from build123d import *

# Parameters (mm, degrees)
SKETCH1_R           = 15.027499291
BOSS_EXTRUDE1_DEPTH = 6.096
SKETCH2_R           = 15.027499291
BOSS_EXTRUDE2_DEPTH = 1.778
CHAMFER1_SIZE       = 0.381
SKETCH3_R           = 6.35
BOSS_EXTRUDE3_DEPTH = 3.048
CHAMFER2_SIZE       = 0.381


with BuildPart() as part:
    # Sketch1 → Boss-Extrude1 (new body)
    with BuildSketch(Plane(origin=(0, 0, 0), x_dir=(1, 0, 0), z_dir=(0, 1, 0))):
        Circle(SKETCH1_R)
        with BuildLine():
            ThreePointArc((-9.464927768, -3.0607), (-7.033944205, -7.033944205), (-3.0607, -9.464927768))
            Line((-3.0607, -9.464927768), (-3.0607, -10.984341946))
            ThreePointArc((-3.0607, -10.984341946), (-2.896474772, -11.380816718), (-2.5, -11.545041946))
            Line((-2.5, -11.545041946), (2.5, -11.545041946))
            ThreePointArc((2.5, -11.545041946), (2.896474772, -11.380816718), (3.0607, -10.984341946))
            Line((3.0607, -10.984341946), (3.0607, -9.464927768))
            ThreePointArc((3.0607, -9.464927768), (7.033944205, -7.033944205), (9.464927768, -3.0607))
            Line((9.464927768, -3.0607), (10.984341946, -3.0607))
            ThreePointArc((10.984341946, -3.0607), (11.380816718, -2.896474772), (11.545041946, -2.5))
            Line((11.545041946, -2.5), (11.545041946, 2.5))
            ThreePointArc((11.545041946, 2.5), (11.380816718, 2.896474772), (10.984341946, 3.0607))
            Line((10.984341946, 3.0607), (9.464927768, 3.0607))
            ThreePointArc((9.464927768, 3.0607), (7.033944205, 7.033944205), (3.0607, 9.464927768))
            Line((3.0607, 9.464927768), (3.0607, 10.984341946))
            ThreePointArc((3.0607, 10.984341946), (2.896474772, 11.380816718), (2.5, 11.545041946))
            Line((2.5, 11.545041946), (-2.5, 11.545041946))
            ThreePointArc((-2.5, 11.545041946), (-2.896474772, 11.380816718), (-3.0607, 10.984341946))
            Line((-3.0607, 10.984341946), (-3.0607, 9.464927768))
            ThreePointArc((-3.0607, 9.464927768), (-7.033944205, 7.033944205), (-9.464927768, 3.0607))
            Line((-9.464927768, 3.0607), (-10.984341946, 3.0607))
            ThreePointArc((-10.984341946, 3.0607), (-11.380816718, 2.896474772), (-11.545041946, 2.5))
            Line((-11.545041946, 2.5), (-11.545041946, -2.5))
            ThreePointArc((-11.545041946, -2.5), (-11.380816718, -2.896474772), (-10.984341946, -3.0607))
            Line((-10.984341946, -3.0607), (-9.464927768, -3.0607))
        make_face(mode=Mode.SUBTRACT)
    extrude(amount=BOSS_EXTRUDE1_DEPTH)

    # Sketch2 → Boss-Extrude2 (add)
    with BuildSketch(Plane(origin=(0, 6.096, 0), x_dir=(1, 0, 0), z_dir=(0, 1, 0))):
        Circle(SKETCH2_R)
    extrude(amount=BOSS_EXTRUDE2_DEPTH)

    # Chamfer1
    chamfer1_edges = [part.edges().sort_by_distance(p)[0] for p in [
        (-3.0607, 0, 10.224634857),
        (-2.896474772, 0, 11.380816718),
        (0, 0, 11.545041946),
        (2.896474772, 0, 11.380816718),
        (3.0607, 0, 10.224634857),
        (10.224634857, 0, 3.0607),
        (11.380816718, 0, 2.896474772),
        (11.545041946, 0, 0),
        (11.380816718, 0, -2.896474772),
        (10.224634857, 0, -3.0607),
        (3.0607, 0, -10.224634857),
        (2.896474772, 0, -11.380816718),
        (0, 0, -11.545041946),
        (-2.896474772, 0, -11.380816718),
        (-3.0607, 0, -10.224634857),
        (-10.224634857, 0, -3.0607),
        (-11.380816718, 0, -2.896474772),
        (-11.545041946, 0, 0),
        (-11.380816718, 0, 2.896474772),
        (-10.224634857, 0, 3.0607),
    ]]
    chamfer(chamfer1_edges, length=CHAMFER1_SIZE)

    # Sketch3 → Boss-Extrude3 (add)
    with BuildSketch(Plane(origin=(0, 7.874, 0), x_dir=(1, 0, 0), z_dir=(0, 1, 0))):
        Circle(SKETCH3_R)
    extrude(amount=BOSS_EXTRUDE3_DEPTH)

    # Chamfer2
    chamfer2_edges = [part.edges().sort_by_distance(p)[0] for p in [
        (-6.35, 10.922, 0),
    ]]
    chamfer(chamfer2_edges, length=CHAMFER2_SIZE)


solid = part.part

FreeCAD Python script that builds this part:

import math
import FreeCAD as App
import Part
import Sketcher
Q = App.Units.Quantity


def edges_at(feature, points):
    """Names of the edges that pass closest to the given points."""
    edges = feature.Shape.Edges
    near = lambda p: min(range(len(edges)), key=lambda i: edges[i].distToShape(Part.Vertex(*p))[0])
    return sorted({f"Edge{near(p) + 1}" for p in points})

doc = App.newDocument("Part")
params = doc.addObject("Spreadsheet::Sheet", "Params")
for row, (alias, value) in enumerate([
    ("pad1_length", "0.24 in"),
    ("pad2_length", "0.07 in"),
    ("chamfer_size", "0.015 in"),
    ("sketch3_diameter", "0.5 in"),
    ("pad3_length", "0.12 in"),
    ("chamfer2_size", "0.015 in"),
], start=1):
    params.set(f"A{row}", alias)
    params.set(f"B{row}", "=" + value)
    params.setAlias(f"B{row}", alias)

body = doc.addObject("PartDesign::Body", "Body")

sketch1 = body.newObject("Sketcher::SketchObject", "Sketch")
sketch1.AttachmentSupport = (doc.getObject("XZ_Plane"), [""])
sketch1.MapMode = "FlatFace"
sketch1.addGeometry([
    Part.Circle(App.Vector(0, 0, 0), App.Vector(0, 0, 1), 15),
    Part.ArcOfCircle(Part.Circle(App.Vector(0, 0, 0), App.Vector(0, 0, 1), 9.9), math.radians(108), math.radians(162)),
    Part.LineSegment(App.Vector(-9.5, 3.1, 0), App.Vector(-11, 3.1, 0)),
    Part.ArcOfCircle(Part.Circle(App.Vector(-11, 2.5, 0), App.Vector(0, 0, 1), 0.6), math.radians(90), math.radians(180)),
    Part.LineSegment(App.Vector(-11.5, 2.5, 0), App.Vector(-11.5, -2.5, 0)),
    Part.ArcOfCircle(Part.Circle(App.Vector(-11, -2.5, 0), App.Vector(0, 0, 1), 0.6), math.radians(-180), math.radians(-90)),
    Part.LineSegment(App.Vector(-11, -3.1, 0), App.Vector(-9.5, -3.1, 0)),
    Part.ArcOfCircle(Part.Circle(App.Vector(0, 0, 0), App.Vector(0, 0, 1), 9.9), math.radians(-162), math.radians(-108)),
    Part.LineSegment(App.Vector(-3.1, -9.5, 0), App.Vector(-3.1, -11, 0)),
    Part.ArcOfCircle(Part.Circle(App.Vector(-2.5, -11, 0), App.Vector(0, 0, 1), 0.6), math.radians(-180), math.radians(-90)),
    Part.LineSegment(App.Vector(-2.5, -11.5, 0), App.Vector(2.5, -11.5, 0)),
    Part.ArcOfCircle(Part.Circle(App.Vector(2.5, -11, 0), App.Vector(0, 0, 1), 0.6), math.radians(-90), math.radians(0)),
    Part.LineSegment(App.Vector(3.1, -11, 0), App.Vector(3.1, -9.5, 0)),
    Part.ArcOfCircle(Part.Circle(App.Vector(0, 0, 0), App.Vector(0, 0, 1), 9.9), math.radians(-72), math.radians(-18)),
    Part.LineSegment(App.Vector(9.5, -3.1, 0), App.Vector(11, -3.1, 0)),
    Part.ArcOfCircle(Part.Circle(App.Vector(11, -2.5, 0), App.Vector(0, 0, 1), 0.6), math.radians(-90), math.radians(0)),
    Part.LineSegment(App.Vector(11.5, -2.5, 0), App.Vector(11.5, 2.5, 0)),
    Part.ArcOfCircle(Part.Circle(App.Vector(11, 2.5, 0), App.Vector(0, 0, 1), 0.6), math.radians(0), math.radians(90)),
    Part.LineSegment(App.Vector(11, 3.1, 0), App.Vector(9.5, 3.1, 0)),
    Part.ArcOfCircle(Part.Circle(App.Vector(0, 0, 0), App.Vector(0, 0, 1), 9.9), math.radians(18), math.radians(72)),
    Part.LineSegment(App.Vector(3.1, 9.5, 0), App.Vector(3.1, 11, 0)),
    Part.ArcOfCircle(Part.Circle(App.Vector(2.5, 11, 0), App.Vector(0, 0, 1), 0.6), math.radians(0), math.radians(90)),
    Part.LineSegment(App.Vector(2.5, 11.5, 0), App.Vector(-2.5, 11.5, 0)),
    Part.ArcOfCircle(Part.Circle(App.Vector(-2.5, 11, 0), App.Vector(0, 0, 1), 0.6), math.radians(90), math.radians(180)),
    Part.LineSegment(App.Vector(-3.1, 11, 0), App.Vector(-3.1, 9.5, 0)),
], False)
sketch1.addConstraint([
    Sketcher.Constraint("Coincident", 1, 2, 2, 1),
    Sketcher.Constraint("Tangent", 2, 2, 3, 1),
    Sketcher.Constraint("Tangent", 3, 2, 4, 1),
    Sketcher.Constraint("Tangent", 4, 2, 5, 1),
    Sketcher.Constraint("Tangent", 5, 2, 6, 1),
    Sketcher.Constraint("Coincident", 6, 2, 7, 1),
    Sketcher.Constraint("Coincident", 7, 2, 8, 1),
    Sketcher.Constraint("Tangent", 8, 2, 9, 1),
    Sketcher.Constraint("Tangent", 9, 2, 10, 1),
    Sketcher.Constraint("Tangent", 10, 2, 11, 1),
    Sketcher.Constraint("Tangent", 11, 2, 12, 1),
    Sketcher.Constraint("Coincident", 12, 2, 13, 1),
    Sketcher.Constraint("Coincident", 13, 2, 14, 1),
    Sketcher.Constraint("Tangent", 14, 2, 15, 1),
    Sketcher.Constraint("Tangent", 15, 2, 16, 1),
    Sketcher.Constraint("Tangent", 16, 2, 17, 1),
    Sketcher.Constraint("Tangent", 17, 2, 18, 1),
    Sketcher.Constraint("Coincident", 18, 2, 19, 1),
    Sketcher.Constraint("Coincident", 19, 2, 20, 1),
    Sketcher.Constraint("Tangent", 20, 2, 21, 1),
    Sketcher.Constraint("Tangent", 21, 2, 22, 1),
    Sketcher.Constraint("Tangent", 22, 2, 23, 1),
    Sketcher.Constraint("Tangent", 23, 2, 24, 1),
    Sketcher.Constraint("Coincident", 24, 2, 1, 1),
    Sketcher.Constraint("Horizontal", 2),
    Sketcher.Constraint("Vertical", 4),
    Sketcher.Constraint("Horizontal", 6),
    Sketcher.Constraint("Vertical", 8),
    Sketcher.Constraint("Horizontal", 10),
    Sketcher.Constraint("Vertical", 12),
    Sketcher.Constraint("Horizontal", 14),
    Sketcher.Constraint("Vertical", 16),
    Sketcher.Constraint("Horizontal", 18),
    Sketcher.Constraint("Vertical", 20),
    Sketcher.Constraint("Horizontal", 22),
    Sketcher.Constraint("Vertical", 24),
    Sketcher.Constraint("Coincident", 0, 3, -1, 1),
    Sketcher.Constraint("Coincident", 1, 3, -1, 1),
    Sketcher.Constraint("Coincident", 7, 3, -1, 1),
    Sketcher.Constraint("Coincident", 13, 3, -1, 1),
    Sketcher.Constraint("Coincident", 19, 3, -1, 1),
    Sketcher.Constraint("Equal", 3, 5),
    Sketcher.Constraint("Equal", 1, 7),
    Sketcher.Constraint("Equal", 5, 9),
    Sketcher.Constraint("Equal", 9, 11),
    Sketcher.Constraint("Equal", 7, 13),
    Sketcher.Constraint("Equal", 11, 15),
    Sketcher.Constraint("Equal", 15, 17),
    Sketcher.Constraint("Equal", 13, 19),
    Sketcher.Constraint("Equal", 17, 21),
    Sketcher.Constraint("Equal", 21, 23),
    Sketcher.Constraint("Symmetric", 3, 3, 15, 3, -1, 1),
    Sketcher.Constraint("Symmetric", 9, 3, 21, 3, -1, 1),
    Sketcher.Constraint("Horizontal", 5, 3, 15, 3),
    Sketcher.Constraint("Horizontal", 3, 3, 17, 3),
    Sketcher.Constraint("Horizontal", 7, 2, 12, 2),
    Sketcher.Constraint("Horizontal", 19, 2, 24, 2),
    Sketcher.Constraint("Equal", 22, 4),
    Sketcher.Constraint("Equal", 18, 8),
    Sketcher.Constraint("Diameter", 0, Q("30.054999 mm")),
    Sketcher.Constraint("Radius", 1, Q("9.947499 mm")),
    Sketcher.Constraint("Radius", 3, Q("0.5607 mm")),
    Sketcher.Constraint("DistanceY", 5, 2, 2, 2, Q("0.241 in")),
    Sketcher.Constraint("DistanceX", 2, 2, 2, 1, Q("1.519414 mm")),
])
pad1 = body.newObject("PartDesign::Pad", "Pad")
pad1.Profile = sketch1
pad1.setExpression("Length", "Params.pad1_length")
pad1.Reversed = True

sketch2 = body.newObject("Sketcher::SketchObject", "Sketch001")
sketch2.AttachmentSupport = (doc.getObject("XZ_Plane"), [""])
sketch2.MapMode = "FlatFace"
sketch2.AttachmentOffset = App.Placement(App.Vector(0, 0, -0.24 * 25.4), App.Rotation())
sketch2.addGeometry(Part.Circle(App.Vector(0, 0, 0), App.Vector(0, 0, 1), 15), False)
sketch2.addConstraint([
    Sketcher.Constraint("Coincident", 0, 3, -1, 1),
    Sketcher.Constraint("Diameter", 0, Q("30.054999 mm")),
])
pad2 = body.newObject("PartDesign::Pad", "Pad001")
pad2.Profile = sketch2
pad2.setExpression("Length", "Params.pad2_length")
pad2.Reversed = True
doc.recompute()

chamfer = body.newObject("PartDesign::Chamfer", "Chamfer")
chamfer.Base = (pad2, edges_at(pad2, [
    (-3.061, 0, 10.225),
    (-2.896, 0, 11.381),
    (0, 0, 11.545),
    (2.896, 0, 11.381),
    (3.061, 0, 10.225),
    (10.225, 0, 3.061),
    (11.381, 0, 2.896),
    (11.545, 0, 0),
    (11.381, 0, -2.896),
    (10.225, 0, -3.061),
    (3.061, 0, -10.225),
    (2.896, 0, -11.381),
    (0, 0, -11.545),
    (-2.896, 0, -11.381),
    (-3.061, 0, -10.225),
    (-10.225, 0, -3.061),
    (-11.381, 0, -2.896),
    (-11.545, 0, 0),
    (-11.381, 0, 2.896),
    (-10.225, 0, 3.061),
]))
chamfer.setExpression("Size", "Params.chamfer_size")

sketch3 = body.newObject("Sketcher::SketchObject", "Sketch002")
sketch3.AttachmentSupport = (doc.getObject("XZ_Plane"), [""])
sketch3.MapMode = "FlatFace"
sketch3.AttachmentOffset = App.Placement(App.Vector(0, 0, -0.31 * 25.4), App.Rotation())
sketch3.addGeometry(Part.Circle(App.Vector(0, 0, 0), App.Vector(0, 0, 1), 6), False)
sketch3.addConstraint([
    Sketcher.Constraint("Coincident", 0, 3, -1, 1),
    Sketcher.Constraint("Diameter", 0, Q("0.5 in")),
])
sketch3.setExpression("Constraints[1]", "Params.sketch3_diameter")
pad3 = body.newObject("PartDesign::Pad", "Pad002")
pad3.Profile = sketch3
pad3.setExpression("Length", "Params.pad3_length")
pad3.Reversed = True
doc.recompute()

chamfer2 = body.newObject("PartDesign::Chamfer", "Chamfer001")
chamfer2.Base = (pad3, edges_at(pad3, [(-6.35, 10.922, 0)]))
chamfer2.setExpression("Size", "Params.chamfer2_size")

doc.recompute()
